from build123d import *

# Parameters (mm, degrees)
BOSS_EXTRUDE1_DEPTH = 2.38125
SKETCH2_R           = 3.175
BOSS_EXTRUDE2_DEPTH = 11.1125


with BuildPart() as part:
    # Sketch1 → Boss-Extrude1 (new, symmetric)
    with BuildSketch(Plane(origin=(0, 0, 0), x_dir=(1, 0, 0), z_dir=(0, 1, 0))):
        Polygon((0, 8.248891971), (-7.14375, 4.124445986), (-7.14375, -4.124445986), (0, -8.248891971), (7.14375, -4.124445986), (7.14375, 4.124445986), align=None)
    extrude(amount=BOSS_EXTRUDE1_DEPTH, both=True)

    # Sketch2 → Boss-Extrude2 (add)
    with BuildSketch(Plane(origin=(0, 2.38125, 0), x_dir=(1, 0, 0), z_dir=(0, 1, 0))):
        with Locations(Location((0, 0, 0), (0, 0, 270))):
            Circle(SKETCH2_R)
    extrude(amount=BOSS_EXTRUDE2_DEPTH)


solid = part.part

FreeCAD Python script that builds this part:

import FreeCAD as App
import Part
import Sketcher

V = App.Vector
Q = App.Units.Quantity


def add_polygon(sketch, points):
    """Adds a closed chain of lines whose ends are joined by coincident constraints."""
    first, n = sketch.GeometryCount, len(points)
    for a, b in zip(points, points[1:] + points[:1]):
        sketch.addGeometry(Part.LineSegment(App.Vector(*a, 0), App.Vector(*b, 0)), False)
    for i in range(n):
        sketch.addConstraint(Sketcher.Constraint("Coincident", first + i, 2, first + (i + 1) % n, 1))

doc = App.newDocument("Part")
body = doc.addObject("PartDesign::Body", "Body")

# Sketch on XZ plane
sketch1 = body.newObject("Sketcher::SketchObject", "Sketch")
sketch1.AttachmentSupport = (doc.getObject("XZ_Plane"), [""])
sketch1.MapMode = "FlatFace"
add_polygon(sketch1, [(0, -8.248892), (-7.14375, -4.124446), (-7.14375, 4.124446), (0, 8.248892), (7.14375, 4.124446), (7.14375, -4.124446)])  # lines 0-5
sketch1.addConstraint([
    Sketcher.Constraint("Vertical", 1),
    Sketcher.Constraint("Vertical", 4),
    Sketcher.Constraint("Symmetric", 0, 2, 3, 2, -1, 1),
    Sketcher.Constraint("Symmetric", 2, 2, 5, 2, -1, 1),
    Sketcher.Constraint("PointOnObject", 2, 2, -2),
    Sketcher.Constraint("Parallel", 2, 5),
    Sketcher.Constraint("Horizontal", 1, 2, 3, 2),
    Sketcher.Constraint("Angle", 0, Q("150 deg")),
    Sketcher.Constraint("DistanceX", 0, 2, -1, 1, Q("0.28125 in")),
    Sketcher.Constraint("DistanceY", 1, 1, 1, 2, Q("8.248892 mm")),
])
pad1 = body.newObject("PartDesign::Pad", "Pad")
pad1.Profile = sketch1
pad1.Length = Q("0.1875 in")
pad1.Midplane = True

# Sketch on XZ plane
sketch2 = body.newObject("Sketcher::SketchObject", "Sketch001")
sketch2.AttachmentSupport = (doc.getObject("XZ_Plane"), [""])
sketch2.MapMode = "FlatFace"
sketch2.AttachmentOffset = App.Placement(V(0, 0, -0.09375 * 25.4), App.Rotation())
sketch2.addGeometry(Part.Circle(V(0, 0, 0), V(0, 0, 1), 3.175), False)
sketch2.addConstraint([
    Sketcher.Constraint("Coincident", 0, 3, -1, 1),
    Sketcher.Constraint("Diameter", 0, Q("0.25 in")),
])
pad2 = body.newObject("PartDesign::Pad", "Pad001")
pad2.Profile = sketch2
pad2.Length = Q("0.4375 in")
pad2.Reversed = True

doc.recompute()
